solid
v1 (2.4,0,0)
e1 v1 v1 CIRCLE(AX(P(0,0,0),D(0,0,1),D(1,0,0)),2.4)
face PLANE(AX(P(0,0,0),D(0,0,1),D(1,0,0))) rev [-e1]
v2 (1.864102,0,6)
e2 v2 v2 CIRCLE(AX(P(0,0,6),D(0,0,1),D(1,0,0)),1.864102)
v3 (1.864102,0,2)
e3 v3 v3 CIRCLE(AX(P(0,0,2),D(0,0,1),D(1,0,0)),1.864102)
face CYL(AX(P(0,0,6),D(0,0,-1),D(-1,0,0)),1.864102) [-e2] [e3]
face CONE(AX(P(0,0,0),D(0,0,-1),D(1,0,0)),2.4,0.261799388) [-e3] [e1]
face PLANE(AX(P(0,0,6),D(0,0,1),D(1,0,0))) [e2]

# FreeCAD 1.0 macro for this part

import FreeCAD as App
import Part
import Sketcher

V = App.Vector
Q = App.Units.Quantity

doc = App.newDocument("Part")
body = doc.addObject("PartDesign::Body", "Body")

sketch1 = body.newObject("Sketcher::SketchObject", "Sketch")
sketch1.AttachmentSupport = (doc.getObject("XY_Plane"), [""])
sketch1.MapMode = "FlatFace"
sketch1.addGeometry(Part.Circle(V(0, 0, 0), V(0, 0, 1), 2.4), False)
sketch1.addConstraint(Sketcher.Constraint("Coincident", 0, 3, -1, 1))
sketch1.addConstraint(Sketcher.Constraint("Diameter", 0, Q("4.8 mm")))
pad1 = body.newObject("PartDesign::Pad", "Pad")
pad1.Profile = sketch1
pad1.Length = 2
pad1.TaperAngle = -15

sketch2 = body.newObject("Sketcher::SketchObject", "Sketch001")
sketch2.AttachmentSupport = (doc.getObject("XY_Plane"), [""])
sketch2.MapMode = "FlatFace"
sketch2.AttachmentOffset = App.Placement(V(0, 0, 2), App.Rotation())
sketch2.addGeometry(Part.Circle(V(0, 0, 0), V(0, 0, 1), 1.9), False)
sketch2.addConstraint(Sketcher.Constraint("Coincident", 0, 3, -1, 1))
sketch2.addConstraint(Sketcher.Constraint("Diameter", 0, Q("3.728203 mm")))
pad2 = body.newObject("PartDesign::Pad", "Pad001")
pad2.Profile = sketch2
pad2.Length = 4

doc.recompute()
